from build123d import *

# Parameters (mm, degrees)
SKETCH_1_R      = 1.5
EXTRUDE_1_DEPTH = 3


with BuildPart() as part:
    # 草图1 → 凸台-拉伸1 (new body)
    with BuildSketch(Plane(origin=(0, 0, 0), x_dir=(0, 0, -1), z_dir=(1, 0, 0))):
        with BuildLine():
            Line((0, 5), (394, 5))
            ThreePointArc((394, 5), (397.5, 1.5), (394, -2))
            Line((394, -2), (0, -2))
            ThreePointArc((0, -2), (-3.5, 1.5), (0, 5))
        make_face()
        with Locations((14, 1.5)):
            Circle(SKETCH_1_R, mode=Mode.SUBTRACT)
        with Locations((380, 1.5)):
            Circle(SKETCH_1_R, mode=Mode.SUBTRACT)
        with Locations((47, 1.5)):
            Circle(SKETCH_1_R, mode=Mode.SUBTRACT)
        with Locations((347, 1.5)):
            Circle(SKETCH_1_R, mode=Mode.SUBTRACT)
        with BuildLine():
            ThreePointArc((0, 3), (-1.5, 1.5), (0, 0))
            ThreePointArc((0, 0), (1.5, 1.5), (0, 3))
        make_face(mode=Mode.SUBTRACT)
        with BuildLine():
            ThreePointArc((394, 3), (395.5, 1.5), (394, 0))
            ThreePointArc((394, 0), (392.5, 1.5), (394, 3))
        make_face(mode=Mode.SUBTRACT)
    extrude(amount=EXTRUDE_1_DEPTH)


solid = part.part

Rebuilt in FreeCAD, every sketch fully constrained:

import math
import FreeCAD as App
import Part
import Sketcher
from FreeCAD import Vector
Q = App.Units.Quantity

doc = App.newDocument("Part")
body = doc.addObject("PartDesign::Body", "Body")

# Sketch on YZ plane
sketch1 = body.newObject("Sketcher::SketchObject", "Sketch")
sketch1.AttachmentSupport = (doc.getObject("YZ_Plane"), [""])
sketch1.MapMode = "FlatFace"
sketch1.addGeometry([
    Part.LineSegment(Vector(5, -394, 0), Vector(5, 0, 0)),  # 0
    Part.ArcOfCircle(Part.Circle(Vector(1.5, 0, 0), Vector(0, 0, 1), 3.5), math.radians(0), math.radians(180)),  # 1
    Part.LineSegment(Vector(-2, 0, 0), Vector(-2, -394, 0)),  # 2
    Part.ArcOfCircle(Part.Circle(Vector(1.5, -394, 0), Vector(0, 0, 1), 3.5), math.radians(180), math.radians(360)),  # 3
    Part.Circle(Vector(1.5, -394, 0), Vector(0, 0, 1), 1.5),  # 4
    Part.Circle(Vector(1.5, -380, 0), Vector(0, 0, 1), 1.5),  # 5
    Part.Circle(Vector(1.5, -347, 0), Vector(0, 0, 1), 1.5),  # 6
    Part.Circle(Vector(1.5, -47, 0), Vector(0, 0, 1), 1.5),  # 7
    Part.Circle(Vector(1.5, -14, 0), Vector(0, 0, 1), 1.5),  # 8
    Part.Circle(Vector(1.5, 0, 0), Vector(0, 0, 1), 1.5),  # 9
], False)
sketch1.addConstraint([
    Sketcher.Constraint("Tangent", 0, 2, 1, 1),
    Sketcher.Constraint("Tangent", 1, 2, 2, 1),
    Sketcher.Constraint("Tangent", 2, 2, 3, 1),
    Sketcher.Constraint("Tangent", 3, 2, 0, 1),
    Sketcher.Constraint("Vertical", 0),
    Sketcher.Constraint("Vertical", 2),
    Sketcher.Constraint("Coincident", 4, 3, 3, 3),
    Sketcher.Constraint("Coincident", 9, 3, 1, 3),
    Sketcher.Constraint("Equal", 4, 5),
    Sketcher.Constraint("Equal", 5, 6),
    Sketcher.Constraint("Equal", 6, 7),
    Sketcher.Constraint("Equal", 7, 8),
    Sketcher.Constraint("Equal", 8, 9),
    Sketcher.Constraint("PointOnObject", 1, 3, -1),
    Sketcher.Constraint("Vertical", 4, 3, 5, 3),
    Sketcher.Constraint("Vertical", 5, 3, 6, 3),
    Sketcher.Constraint("Vertical", 6, 3, 7, 3),
    Sketcher.Constraint("Vertical", 7, 3, 8, 3),
    Sketcher.Constraint("Diameter", 4, Q("3 mm")),
    Sketcher.Constraint("Radius", 1, Q("3.5 mm")),
    Sketcher.Constraint("DistanceY", 0, 1, 0, 2, Q("394 mm")),
    Sketcher.Constraint("DistanceY", 5, 3, -1, 1, Q("380 mm")),
    Sketcher.Constraint("DistanceY", 6, 3, -1, 1, Q("347 mm")),
    Sketcher.Constraint("DistanceY", 7, 3, -1, 1, Q("47 mm")),
    Sketcher.Constraint("DistanceY", 8, 3, -1, 1, Q("14 mm")),
    Sketcher.Constraint("DistanceX", -1, 1, 0, 2, Q("5 mm")),
])
pad1 = body.newObject("PartDesign::Pad", "Pad")
pad1.Profile = sketch1
pad1.Length = 3

doc.recompute()
